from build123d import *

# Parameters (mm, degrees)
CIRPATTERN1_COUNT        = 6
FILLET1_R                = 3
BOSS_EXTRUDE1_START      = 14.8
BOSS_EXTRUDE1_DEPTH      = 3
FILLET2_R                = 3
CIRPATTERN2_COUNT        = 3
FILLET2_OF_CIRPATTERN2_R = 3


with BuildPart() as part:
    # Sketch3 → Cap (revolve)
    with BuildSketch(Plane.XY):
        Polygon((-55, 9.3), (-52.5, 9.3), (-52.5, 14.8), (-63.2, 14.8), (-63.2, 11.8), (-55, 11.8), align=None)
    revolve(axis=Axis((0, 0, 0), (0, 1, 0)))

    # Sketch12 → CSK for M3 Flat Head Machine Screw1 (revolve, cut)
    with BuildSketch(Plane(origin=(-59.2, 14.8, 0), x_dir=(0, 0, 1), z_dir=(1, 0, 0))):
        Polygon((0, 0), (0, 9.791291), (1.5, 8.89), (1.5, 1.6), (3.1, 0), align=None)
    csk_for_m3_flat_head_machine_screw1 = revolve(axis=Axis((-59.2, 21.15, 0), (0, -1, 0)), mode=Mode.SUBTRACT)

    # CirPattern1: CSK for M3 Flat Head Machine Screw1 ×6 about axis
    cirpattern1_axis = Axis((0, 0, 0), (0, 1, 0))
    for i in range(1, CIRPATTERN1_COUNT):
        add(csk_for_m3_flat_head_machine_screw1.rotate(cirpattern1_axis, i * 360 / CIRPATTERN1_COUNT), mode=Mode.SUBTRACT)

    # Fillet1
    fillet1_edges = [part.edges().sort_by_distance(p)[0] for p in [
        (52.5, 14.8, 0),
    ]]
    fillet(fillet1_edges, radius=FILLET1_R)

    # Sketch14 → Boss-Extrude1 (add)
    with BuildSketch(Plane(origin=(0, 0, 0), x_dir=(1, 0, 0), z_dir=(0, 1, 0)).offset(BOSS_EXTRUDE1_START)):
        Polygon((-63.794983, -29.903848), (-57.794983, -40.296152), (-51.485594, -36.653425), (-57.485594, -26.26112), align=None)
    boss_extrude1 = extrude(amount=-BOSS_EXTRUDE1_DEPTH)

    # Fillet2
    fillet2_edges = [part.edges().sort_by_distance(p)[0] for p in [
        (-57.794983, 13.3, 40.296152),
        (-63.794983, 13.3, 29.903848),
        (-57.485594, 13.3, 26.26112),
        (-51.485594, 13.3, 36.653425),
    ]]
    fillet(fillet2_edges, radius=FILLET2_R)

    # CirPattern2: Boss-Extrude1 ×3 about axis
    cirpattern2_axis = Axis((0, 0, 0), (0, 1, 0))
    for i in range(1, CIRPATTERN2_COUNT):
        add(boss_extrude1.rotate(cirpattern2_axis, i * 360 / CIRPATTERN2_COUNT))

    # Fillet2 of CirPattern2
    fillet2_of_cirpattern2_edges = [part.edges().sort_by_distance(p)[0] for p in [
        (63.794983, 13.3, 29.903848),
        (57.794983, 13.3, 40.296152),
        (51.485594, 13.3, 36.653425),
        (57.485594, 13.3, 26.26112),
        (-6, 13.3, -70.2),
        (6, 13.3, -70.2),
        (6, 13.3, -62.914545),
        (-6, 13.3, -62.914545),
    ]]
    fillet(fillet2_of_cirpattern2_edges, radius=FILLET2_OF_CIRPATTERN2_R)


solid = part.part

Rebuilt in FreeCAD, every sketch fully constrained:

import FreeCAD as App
import Part
import Sketcher

V = App.Vector
Q = App.Units.Quantity


def edges_at(feature, points):
    """Names of the edges that pass closest to the given points."""
    edges = feature.Shape.Edges
    near = lambda p: min(range(len(edges)), key=lambda i: edges[i].distToShape(Part.Vertex(*p))[0])
    return sorted({f"Edge{near(p) + 1}" for p in points})


def add_polygon(sketch, points):
    """Adds a closed chain of lines whose ends are joined by coincident constraints."""
    first, n = sketch.GeometryCount, len(points)
    for a, b in zip(points, points[1:] + points[:1]):
        sketch.addGeometry(Part.LineSegment(App.Vector(*a, 0), App.Vector(*b, 0)), False)
    for i in range(n):
        sketch.addConstraint(Sketcher.Constraint("Coincident", first + i, 2, first + (i + 1) % n, 1))

doc = App.newDocument("Part")
body = doc.addObject("PartDesign::Body", "Body")

# Sketch on XY plane
sketch1 = doc.addObject("Sketcher::SketchObject", "Sketch")
body.addObject(sketch1)
sketch1.AttachmentSupport = (doc.XY_Plane, [""])
sketch1.MapMode = "FlatFace"
add_polygon(sketch1, [(-55, 9.3), (-52.5, 9.3), (-52.5, 14.8), (-63.2, 14.8), (-63.2, 11.8), (-55, 11.8)])  # lines 0-5
sketch1.addConstraint(Sketcher.Constraint("Horizontal", 0))
sketch1.addConstraint(Sketcher.Constraint("Vertical", 1))
sketch1.addConstraint(Sketcher.Constraint("Horizontal", 2))
sketch1.addConstraint(Sketcher.Constraint("Vertical", 3))
sketch1.addConstraint(Sketcher.Constraint("Horizontal", 4))
sketch1.addConstraint(Sketcher.Constraint("Vertical", 5))
sketch1.addConstraint(Sketcher.Constraint("Equal", 0, 5))
sketch1.addConstraint(Sketcher.Constraint("DistanceY", 3, 2, 3, 1, 3.0))
sketch1.addConstraint(Sketcher.Constraint("DistanceX", 0, 1, 0, 2, 2.5))
sketch1.addConstraint(Sketcher.Constraint("DistanceX", 2, 2, 2, 1, 10.7))
sketch1.addConstraint(Sketcher.Constraint("DistanceX", 4, 2, -1, 1, 55.0))
sketch1.addConstraint(Sketcher.Constraint("DistanceY", -1, 1, 0, 2, 9.3))
revolution = doc.addObject("PartDesign::Revolution", "Revolution")
body.addObject(revolution)
revolution.Profile = sketch1
revolution.ReferenceAxis = (sketch1, ["V_Axis"])
revolution.Angle = 360

# Sketch on YZ plane
sketch2 = doc.addObject("Sketcher::SketchObject", "Sketch001")
body.addObject(sketch2)
sketch2.AttachmentSupport = (doc.YZ_Plane, [""])
sketch2.MapMode = "FlatFace"
sketch2.AttachmentOffset = App.Placement(V(0, 0, -59.2), App.Rotation())
add_polygon(sketch2, [(5, 0), (14.8, 0), (14.8, 3.1), (13.2, 1.5), (5.9, 1.5)])  # lines 0-4
sketch2.addConstraint(Sketcher.Constraint("Horizontal", 0))
sketch2.addConstraint(Sketcher.Constraint("Vertical", 1))
sketch2.addConstraint(Sketcher.Constraint("Horizontal", 3))
sketch2.addConstraint(Sketcher.Constraint("PointOnObject", 0, 2, -1))
sketch2.addConstraint(Sketcher.Constraint("Angle", 2, Q("-135 deg")))
sketch2.addConstraint(Sketcher.Constraint("Angle", 4, Q("-121.000002 deg")))
sketch2.addConstraint(Sketcher.Constraint("DistanceY", 1, 1, 1, 2, 3.1))
sketch2.addConstraint(Sketcher.Constraint("DistanceX", 3, 2, 3, 1, 7.29))
sketch2.addConstraint(Sketcher.Constraint("DistanceX", -1, 1, 0, 2, 14.8))
sketch2.addConstraint(Sketcher.Constraint("DistanceX", -1, 1, 2, 2, 13.2))
groove = doc.addObject("PartDesign::Groove", "Groove")
body.addObject(groove)
groove.Profile = sketch2
groove.ReferenceAxis = (sketch2, ["H_Axis"])
groove.Angle = 360
doc.recompute()

polarpattern = doc.addObject("PartDesign::PolarPattern", "PolarPattern")
body.addObject(polarpattern)
polarpattern.Originals = [groove]
polarpattern.Axis = (doc.Y_Axis, [""])
polarpattern.Angle = 360
polarpattern.Occurrences = 6
body.Tip = polarpattern
doc.recompute()

fillet = doc.addObject("PartDesign::Fillet", "Fillet")
body.addObject(fillet)
fillet.Base = (polarpattern, edges_at(polarpattern, [(52.5, 14.8, 0)]))
fillet.Radius = 3

# Sketch on XZ plane
sketch3 = doc.addObject("Sketcher::SketchObject", "Sketch002")
body.addObject(sketch3)
sketch3.AttachmentSupport = (doc.XZ_Plane, [""])
sketch3.MapMode = "FlatFace"
sketch3.AttachmentOffset = App.Placement(V(0, 0, -14.8), App.Rotation())
add_polygon(sketch3, [(-64, 30), (-58, 40), (-51, 37), (-57, 26)])  # lines 0-3
sketch3.addConstraint(Sketcher.Constraint("Perpendicular", 0, 1))
sketch3.addConstraint(Sketcher.Constraint("Perpendicular", 1, 2))
sketch3.addConstraint(Sketcher.Constraint("Perpendicular", 2, 3))
sketch3.addConstraint(Sketcher.Constraint("Angle", 0, Q("59.999998 deg")))
sketch3.addConstraint(Sketcher.Constraint("Distance", 0, 11.999999))
sketch3.addConstraint(Sketcher.Constraint("DistanceY", -1, 1, 2, 2, 26.26112))
sketch3.addConstraint(Sketcher.Constraint("DistanceY", -1, 1, 3, 2, 29.903848))
sketch3.addConstraint(Sketcher.Constraint("DistanceX", 0, 2, -1, 1, 57.794983))
pad1 = doc.addObject("PartDesign::Pad", "Pad")
body.addObject(pad1)
pad1.Profile = sketch3
pad1.Length = 3
doc.recompute()

fillet2 = doc.addObject("PartDesign::Fillet", "Fillet001")
body.addObject(fillet2)
fillet2.Base = (pad1, edges_at(pad1, [
    (-57.795, 13.3, 40.296),
    (-63.795, 13.3, 29.904),
    (-57.486, 13.3, 26.261),
    (-51.486, 13.3, 36.653),
]))
fillet2.Radius = 3
doc.recompute()

polarpattern2 = doc.addObject("PartDesign::PolarPattern", "PolarPattern001")
body.addObject(polarpattern2)
polarpattern2.Originals = [pad1]
polarpattern2.Axis = (doc.Y_Axis, [""])
polarpattern2.Angle = 360
polarpattern2.Occurrences = 3
body.Tip = polarpattern2
doc.recompute()

fillet3 = doc.addObject("PartDesign::Fillet", "Fillet002")
body.addObject(fillet3)
fillet3.Base = (polarpattern2, edges_at(polarpattern2, [
    (63.795, 13.3, 29.904),
    (57.795, 13.3, 40.296),
    (51.486, 13.3, 36.653),
    (57.486, 13.3, 26.261),
    (-6, 13.3, -70.2),
    (6, 13.3, -70.2),
    (6, 13.3, -62.915),
    (-6, 13.3, -62.915),
]))
fillet3.Radius = 3

doc.recompute()
